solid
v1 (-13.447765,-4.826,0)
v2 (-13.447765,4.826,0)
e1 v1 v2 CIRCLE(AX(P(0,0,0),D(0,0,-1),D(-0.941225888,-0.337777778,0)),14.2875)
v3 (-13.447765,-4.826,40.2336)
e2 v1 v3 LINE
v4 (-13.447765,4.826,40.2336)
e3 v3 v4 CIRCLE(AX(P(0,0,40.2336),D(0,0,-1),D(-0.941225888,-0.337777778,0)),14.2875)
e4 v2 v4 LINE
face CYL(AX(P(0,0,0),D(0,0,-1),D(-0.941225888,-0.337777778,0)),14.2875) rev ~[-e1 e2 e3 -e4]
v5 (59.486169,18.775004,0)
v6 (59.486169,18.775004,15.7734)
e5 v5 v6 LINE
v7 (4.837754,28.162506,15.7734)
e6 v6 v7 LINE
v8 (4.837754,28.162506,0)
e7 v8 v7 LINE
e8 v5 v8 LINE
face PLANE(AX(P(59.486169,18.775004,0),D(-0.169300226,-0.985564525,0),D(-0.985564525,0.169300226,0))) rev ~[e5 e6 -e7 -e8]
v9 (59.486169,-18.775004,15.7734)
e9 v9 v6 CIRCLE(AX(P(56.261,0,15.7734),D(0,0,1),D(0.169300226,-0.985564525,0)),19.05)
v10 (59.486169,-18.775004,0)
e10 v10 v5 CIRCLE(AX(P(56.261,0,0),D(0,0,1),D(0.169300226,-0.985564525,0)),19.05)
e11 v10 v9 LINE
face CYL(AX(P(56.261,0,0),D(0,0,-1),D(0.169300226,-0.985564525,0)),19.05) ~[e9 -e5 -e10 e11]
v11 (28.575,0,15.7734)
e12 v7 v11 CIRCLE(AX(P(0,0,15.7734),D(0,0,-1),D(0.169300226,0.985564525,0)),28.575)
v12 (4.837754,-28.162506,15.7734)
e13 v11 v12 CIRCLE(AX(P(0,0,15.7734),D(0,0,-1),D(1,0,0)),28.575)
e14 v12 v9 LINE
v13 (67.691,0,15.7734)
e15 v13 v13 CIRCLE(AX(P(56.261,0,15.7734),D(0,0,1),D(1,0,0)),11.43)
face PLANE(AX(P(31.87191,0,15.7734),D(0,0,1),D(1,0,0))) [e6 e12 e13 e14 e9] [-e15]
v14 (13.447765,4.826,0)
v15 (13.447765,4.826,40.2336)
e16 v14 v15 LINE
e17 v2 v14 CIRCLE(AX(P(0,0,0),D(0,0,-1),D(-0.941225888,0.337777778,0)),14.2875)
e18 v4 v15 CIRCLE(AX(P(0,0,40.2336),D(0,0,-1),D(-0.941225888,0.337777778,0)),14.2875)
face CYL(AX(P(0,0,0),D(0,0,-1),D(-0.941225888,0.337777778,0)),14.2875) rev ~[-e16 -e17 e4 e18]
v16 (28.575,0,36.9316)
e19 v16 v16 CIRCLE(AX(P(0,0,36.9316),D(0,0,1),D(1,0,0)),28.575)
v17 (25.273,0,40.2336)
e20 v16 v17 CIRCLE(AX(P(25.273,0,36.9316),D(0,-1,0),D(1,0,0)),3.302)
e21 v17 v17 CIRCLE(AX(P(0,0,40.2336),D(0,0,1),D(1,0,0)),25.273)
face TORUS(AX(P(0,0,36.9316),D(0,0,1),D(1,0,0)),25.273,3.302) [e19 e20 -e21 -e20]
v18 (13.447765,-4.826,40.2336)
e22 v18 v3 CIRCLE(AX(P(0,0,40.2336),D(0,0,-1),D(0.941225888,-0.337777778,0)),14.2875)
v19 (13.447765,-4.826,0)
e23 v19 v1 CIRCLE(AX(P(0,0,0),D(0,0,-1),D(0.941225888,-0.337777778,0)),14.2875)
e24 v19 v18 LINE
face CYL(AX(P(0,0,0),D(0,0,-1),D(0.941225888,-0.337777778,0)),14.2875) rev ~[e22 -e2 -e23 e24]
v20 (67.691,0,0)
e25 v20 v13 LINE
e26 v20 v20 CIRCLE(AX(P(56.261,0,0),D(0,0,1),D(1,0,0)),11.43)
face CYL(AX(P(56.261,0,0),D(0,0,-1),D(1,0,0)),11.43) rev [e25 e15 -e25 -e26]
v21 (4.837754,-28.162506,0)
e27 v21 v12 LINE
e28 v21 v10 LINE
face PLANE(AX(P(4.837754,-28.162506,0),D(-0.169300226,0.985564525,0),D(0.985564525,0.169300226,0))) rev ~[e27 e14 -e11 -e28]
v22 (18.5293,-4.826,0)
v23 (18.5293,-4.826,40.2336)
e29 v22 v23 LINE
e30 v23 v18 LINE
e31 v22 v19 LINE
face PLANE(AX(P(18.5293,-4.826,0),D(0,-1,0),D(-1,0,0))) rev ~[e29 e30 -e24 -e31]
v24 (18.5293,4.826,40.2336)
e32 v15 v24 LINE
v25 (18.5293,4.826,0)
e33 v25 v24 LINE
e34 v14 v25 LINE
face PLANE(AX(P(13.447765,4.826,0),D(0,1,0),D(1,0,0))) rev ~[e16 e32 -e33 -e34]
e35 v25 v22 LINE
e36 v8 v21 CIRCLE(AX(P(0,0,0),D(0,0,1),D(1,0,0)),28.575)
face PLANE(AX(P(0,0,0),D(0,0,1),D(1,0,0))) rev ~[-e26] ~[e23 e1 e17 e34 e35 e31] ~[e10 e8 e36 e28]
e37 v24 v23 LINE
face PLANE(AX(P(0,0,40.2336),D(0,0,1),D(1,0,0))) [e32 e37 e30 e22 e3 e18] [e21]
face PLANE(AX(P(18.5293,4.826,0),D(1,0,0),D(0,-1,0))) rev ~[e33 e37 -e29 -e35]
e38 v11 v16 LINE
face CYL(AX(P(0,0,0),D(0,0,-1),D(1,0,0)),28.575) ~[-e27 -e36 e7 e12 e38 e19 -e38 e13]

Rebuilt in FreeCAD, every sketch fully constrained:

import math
import FreeCAD as App
import Part
import Sketcher
Q = App.Units.Quantity


def edges_at(feature, points):
    """Names of the edges that pass closest to the given points."""
    edges = feature.Shape.Edges
    near = lambda p: min(range(len(edges)), key=lambda i: edges[i].distToShape(Part.Vertex(*p))[0])
    return sorted({f"Edge{near(p) + 1}" for p in points})

doc = App.newDocument("Part")
body = doc.addObject("PartDesign::Body", "Body")

# Sketch on XY plane
sketch1 = body.newObject("Sketcher::SketchObject", "Sketch")
sketch1.AttachmentSupport = (doc.getObject("XY_Plane"), [""])
sketch1.MapMode = "FlatFace"
sketch1.addGeometry([
    Part.ArcOfCircle(Part.Circle(App.Vector(0, 0, 0), App.Vector(0, 0, 1), 29), math.radians(0), math.radians(80)),  # 0
    Part.ArcOfCircle(Part.Circle(App.Vector(0, 0, 0), App.Vector(0, 0, 1), 29), math.radians(-80), math.radians(0)),  # 1
    Part.LineSegment(App.Vector(5, -28, 0), App.Vector(59, -19, 0)),  # 2
    Part.ArcOfCircle(Part.Circle(App.Vector(56, 0, 0), App.Vector(0, 0, 1), 19), math.radians(-80), math.radians(80)),  # 3
    Part.LineSegment(App.Vector(59, 19, 0), App.Vector(5, 28, 0)),  # 4
    Part.Circle(App.Vector(56, 0, 0), App.Vector(0, 0, 1), 11),  # 5
], False)
sketch1.addConstraint([
    Sketcher.Constraint("Tangent", 0, 1, 1, 2),
    Sketcher.Constraint("Tangent", 1, 1, 2, 1),
    Sketcher.Constraint("Tangent", 2, 2, 3, 1),
    Sketcher.Constraint("Tangent", 3, 2, 4, 1),
    Sketcher.Constraint("Tangent", 4, 2, 0, 2),
    Sketcher.Constraint("Coincident", 0, 3, -1, 1),
    Sketcher.Constraint("Coincident", 5, 3, 3, 3),
    Sketcher.Constraint("Equal", 0, 1),
    Sketcher.Constraint("PointOnObject", 3, 3, -1),
    Sketcher.Constraint("PointOnObject", 0, 1, -1),
    Sketcher.Constraint("Diameter", 5, Q("0.9 in")),
    Sketcher.Constraint("Radius", 3, Q("0.75 in")),
    Sketcher.Constraint("Radius", 0, Q("1.125 in")),
    Sketcher.Constraint("DistanceX", 0, 1, 3, 3, Q("1.09 in")),
])
pad1 = body.newObject("PartDesign::Pad", "Pad")
pad1.Profile = sketch1
pad1.Length = Q("0.621 in")

# Sketch on XY plane
sketch2 = body.newObject("Sketcher::SketchObject", "Sketch001")
sketch2.AttachmentSupport = (doc.getObject("XY_Plane"), [""])
sketch2.MapMode = "FlatFace"
sketch2.addGeometry([
    Part.Circle(App.Vector(0, 0, 0), App.Vector(0, 0, 1), 29),  # 0
    Part.ArcOfCircle(Part.Circle(App.Vector(0, 0, 0), App.Vector(0, 0, 1), 14), math.radians(-160), math.radians(-20)),  # 1
    Part.ArcOfCircle(Part.Circle(App.Vector(0, 0, 0), App.Vector(0, 0, 1), 14), math.radians(160), math.radians(200)),  # 2
    Part.ArcOfCircle(Part.Circle(App.Vector(0, 0, 0), App.Vector(0, 0, 1), 14), math.radians(20), math.radians(160)),  # 3
    Part.LineSegment(App.Vector(13, 5, 0), App.Vector(19, 5, 0)),  # 4
    Part.LineSegment(App.Vector(19, 5, 0), App.Vector(19, -5, 0)),  # 5
    Part.LineSegment(App.Vector(19, -5, 0), App.Vector(13, -5, 0)),  # 6
], False)
sketch2.addConstraint([
    Sketcher.Constraint("Tangent", 1, 1, 2, 2),
    Sketcher.Constraint("Tangent", 2, 1, 3, 2),
    Sketcher.Constraint("Coincident", 3, 1, 4, 1),
    Sketcher.Constraint("Coincident", 4, 2, 5, 1),
    Sketcher.Constraint("Coincident", 5, 2, 6, 1),
    Sketcher.Constraint("Coincident", 6, 2, 1, 2),
    Sketcher.Constraint("Horizontal", 4),
    Sketcher.Constraint("Vertical", 5),
    Sketcher.Constraint("Horizontal", 6),
    Sketcher.Constraint("Coincident", 0, 3, -1, 1),
    Sketcher.Constraint("Coincident", 1, 3, -1, 1),
    Sketcher.Constraint("Coincident", 3, 3, -1, 1),
    Sketcher.Constraint("Horizontal", 2, 1, 3, 1),
    Sketcher.Constraint("Horizontal", 1, 1, 5, 2),
    Sketcher.Constraint("Vertical", 1, 1, 2, 1),
    Sketcher.Constraint("Diameter", 0, Q("2.25 in")),
    Sketcher.Constraint("Radius", 1, Q("0.5625 in")),
    Sketcher.Constraint("DistanceY", 5, 2, 5, 1, Q("0.38 in")),
    Sketcher.Constraint("DistanceX", -1, 1, 4, 2, Q("0.7295 in")),
])
pad2 = body.newObject("PartDesign::Pad", "Pad001")
pad2.Profile = sketch2
pad2.Length = Q("1.584 in")
doc.recompute()

fillet = body.newObject("PartDesign::Fillet", "Fillet")
fillet.Base = (pad2, edges_at(pad2, [(-28.575, 0, 40.234)]))
fillet.Radius = Q("0.13 in")

doc.recompute()
